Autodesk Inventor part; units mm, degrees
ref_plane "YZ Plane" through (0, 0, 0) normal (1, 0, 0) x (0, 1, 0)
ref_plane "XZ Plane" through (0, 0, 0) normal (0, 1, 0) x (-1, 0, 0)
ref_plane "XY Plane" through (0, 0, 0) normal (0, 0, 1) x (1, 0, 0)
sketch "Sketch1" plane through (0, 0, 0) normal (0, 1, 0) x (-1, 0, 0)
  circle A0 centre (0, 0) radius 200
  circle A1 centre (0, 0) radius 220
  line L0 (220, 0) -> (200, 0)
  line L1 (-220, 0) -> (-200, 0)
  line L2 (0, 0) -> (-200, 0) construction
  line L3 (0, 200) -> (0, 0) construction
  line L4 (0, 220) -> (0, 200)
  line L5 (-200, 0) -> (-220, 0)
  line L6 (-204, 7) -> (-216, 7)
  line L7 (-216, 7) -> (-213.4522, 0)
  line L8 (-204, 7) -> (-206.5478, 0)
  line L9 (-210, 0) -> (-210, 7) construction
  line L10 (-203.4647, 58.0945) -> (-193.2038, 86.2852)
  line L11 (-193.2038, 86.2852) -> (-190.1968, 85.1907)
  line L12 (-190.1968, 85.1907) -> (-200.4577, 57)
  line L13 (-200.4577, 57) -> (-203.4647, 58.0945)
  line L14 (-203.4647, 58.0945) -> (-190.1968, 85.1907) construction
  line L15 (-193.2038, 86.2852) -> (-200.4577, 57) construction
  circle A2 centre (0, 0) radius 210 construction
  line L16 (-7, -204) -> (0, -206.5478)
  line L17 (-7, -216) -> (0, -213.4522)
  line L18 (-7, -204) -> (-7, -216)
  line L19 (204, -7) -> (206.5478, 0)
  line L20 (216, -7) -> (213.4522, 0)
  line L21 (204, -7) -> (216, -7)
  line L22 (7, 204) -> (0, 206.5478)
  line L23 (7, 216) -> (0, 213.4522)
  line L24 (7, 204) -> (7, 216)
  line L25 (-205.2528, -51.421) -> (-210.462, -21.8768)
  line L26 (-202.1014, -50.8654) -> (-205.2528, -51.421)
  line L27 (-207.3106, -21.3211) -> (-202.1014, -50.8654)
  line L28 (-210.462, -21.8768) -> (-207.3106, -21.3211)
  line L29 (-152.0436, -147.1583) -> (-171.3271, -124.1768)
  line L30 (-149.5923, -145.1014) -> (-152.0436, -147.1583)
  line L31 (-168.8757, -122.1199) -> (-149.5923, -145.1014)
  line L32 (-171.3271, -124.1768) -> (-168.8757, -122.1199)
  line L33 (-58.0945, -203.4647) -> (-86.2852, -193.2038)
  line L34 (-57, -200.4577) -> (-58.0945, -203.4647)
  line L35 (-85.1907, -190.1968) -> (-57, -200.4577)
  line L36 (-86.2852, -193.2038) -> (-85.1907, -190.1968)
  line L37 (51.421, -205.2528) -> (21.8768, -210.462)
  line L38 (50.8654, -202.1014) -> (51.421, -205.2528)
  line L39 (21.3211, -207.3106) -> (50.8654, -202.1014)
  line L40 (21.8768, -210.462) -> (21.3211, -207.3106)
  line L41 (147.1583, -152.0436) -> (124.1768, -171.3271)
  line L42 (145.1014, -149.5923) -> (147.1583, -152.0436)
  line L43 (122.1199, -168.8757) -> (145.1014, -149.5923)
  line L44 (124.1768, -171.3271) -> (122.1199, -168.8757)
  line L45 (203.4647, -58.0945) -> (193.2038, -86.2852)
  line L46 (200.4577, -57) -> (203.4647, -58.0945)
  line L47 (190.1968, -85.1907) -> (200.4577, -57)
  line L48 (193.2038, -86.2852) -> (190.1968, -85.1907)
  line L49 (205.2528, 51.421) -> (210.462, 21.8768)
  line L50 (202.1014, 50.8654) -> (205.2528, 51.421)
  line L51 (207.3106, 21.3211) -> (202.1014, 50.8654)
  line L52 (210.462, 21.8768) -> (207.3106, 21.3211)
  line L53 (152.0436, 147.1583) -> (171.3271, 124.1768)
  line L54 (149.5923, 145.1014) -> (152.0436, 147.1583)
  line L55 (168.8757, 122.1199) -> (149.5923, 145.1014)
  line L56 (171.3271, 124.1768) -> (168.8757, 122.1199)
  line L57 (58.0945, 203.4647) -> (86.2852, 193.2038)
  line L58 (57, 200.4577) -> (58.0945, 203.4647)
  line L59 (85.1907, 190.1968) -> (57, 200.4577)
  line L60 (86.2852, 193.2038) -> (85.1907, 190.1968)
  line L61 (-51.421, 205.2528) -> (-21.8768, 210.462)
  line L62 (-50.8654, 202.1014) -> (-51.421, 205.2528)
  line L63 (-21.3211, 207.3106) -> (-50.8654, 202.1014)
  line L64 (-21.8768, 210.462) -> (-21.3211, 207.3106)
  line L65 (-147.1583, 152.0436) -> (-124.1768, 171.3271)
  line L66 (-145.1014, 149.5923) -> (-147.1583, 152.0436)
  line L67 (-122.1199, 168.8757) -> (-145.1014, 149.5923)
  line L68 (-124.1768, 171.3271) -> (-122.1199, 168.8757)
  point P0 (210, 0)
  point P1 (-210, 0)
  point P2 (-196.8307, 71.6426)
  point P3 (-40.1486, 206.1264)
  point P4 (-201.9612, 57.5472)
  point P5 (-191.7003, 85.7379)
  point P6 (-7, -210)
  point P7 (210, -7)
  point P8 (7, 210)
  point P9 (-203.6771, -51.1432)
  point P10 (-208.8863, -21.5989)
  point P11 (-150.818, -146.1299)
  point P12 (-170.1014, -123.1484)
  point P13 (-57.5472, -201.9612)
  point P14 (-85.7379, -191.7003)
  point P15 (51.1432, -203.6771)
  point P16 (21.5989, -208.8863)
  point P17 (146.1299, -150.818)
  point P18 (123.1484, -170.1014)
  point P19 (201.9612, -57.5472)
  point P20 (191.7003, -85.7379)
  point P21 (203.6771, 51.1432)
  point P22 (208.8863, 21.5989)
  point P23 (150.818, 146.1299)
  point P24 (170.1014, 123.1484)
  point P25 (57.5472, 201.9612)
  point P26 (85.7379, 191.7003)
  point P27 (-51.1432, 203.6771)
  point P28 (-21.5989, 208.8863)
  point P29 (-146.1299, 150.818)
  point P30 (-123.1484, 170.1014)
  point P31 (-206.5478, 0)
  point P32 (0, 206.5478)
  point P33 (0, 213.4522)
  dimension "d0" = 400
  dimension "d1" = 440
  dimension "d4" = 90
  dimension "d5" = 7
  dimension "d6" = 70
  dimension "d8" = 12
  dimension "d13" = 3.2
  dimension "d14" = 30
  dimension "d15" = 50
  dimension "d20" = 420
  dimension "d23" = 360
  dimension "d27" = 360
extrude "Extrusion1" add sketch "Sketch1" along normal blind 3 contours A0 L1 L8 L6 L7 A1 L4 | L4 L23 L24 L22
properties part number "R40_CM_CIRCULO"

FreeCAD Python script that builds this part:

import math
import FreeCAD as App
import Part
import Sketcher
Q = App.Units.Quantity

doc = App.newDocument("Part")
body = doc.addObject("PartDesign::Body", "Body")

sketch1 = body.newObject("Sketcher::SketchObject", "Sketch")
sketch1.AttachmentSupport = (doc.getObject("XZ_Plane"), [""])
sketch1.MapMode = "FlatFace"
sketch1.addGeometry([
    Part.ArcOfCircle(Part.Circle(App.Vector(0, 0, 0), App.Vector(0, 0, 1), 200), math.radians(0), math.radians(90)),
    Part.LineSegment(App.Vector(0, 200, 0), App.Vector(0, 206.5478, 0)),
    Part.LineSegment(App.Vector(0, 206.5478, 0), App.Vector(-7, 204, 0)),
    Part.LineSegment(App.Vector(-7, 204, 0), App.Vector(-7, 216, 0)),
    Part.LineSegment(App.Vector(-7, 216, 0), App.Vector(0, 213.4522, 0)),
    Part.LineSegment(App.Vector(0, 213.4522, 0), App.Vector(0, 220, 0)),
    Part.ArcOfCircle(Part.Circle(App.Vector(0, 0, 0), App.Vector(0, 0, 1), 220), math.radians(0), math.radians(90)),
    Part.LineSegment(App.Vector(220, 0, 0), App.Vector(213.4522, 0, 0)),
    Part.LineSegment(App.Vector(213.4522, 0, 0), App.Vector(216, 7, 0)),
    Part.LineSegment(App.Vector(216, 7, 0), App.Vector(204, 7, 0)),
    Part.LineSegment(App.Vector(204, 7, 0), App.Vector(206.5478, 0, 0)),
    Part.LineSegment(App.Vector(206.5478, 0, 0), App.Vector(200, 0, 0)),
    Part.LineSegment(App.Vector(200.4577, 57, 0), App.Vector(203.4647, 58.0945, 0)),
    Part.LineSegment(App.Vector(203.4647, 58.0945, 0), App.Vector(193.2038, 86.2852, 0)),
    Part.LineSegment(App.Vector(193.2038, 86.2852, 0), App.Vector(190.1968, 85.1907, 0)),
    Part.LineSegment(App.Vector(190.1968, 85.1907, 0), App.Vector(200.4577, 57, 0)),
    Part.LineSegment(App.Vector(145.1014, 149.5923, 0), App.Vector(147.1583, 152.0436, 0)),
    Part.LineSegment(App.Vector(147.1583, 152.0436, 0), App.Vector(124.1768, 171.3271, 0)),
    Part.LineSegment(App.Vector(124.1768, 171.3271, 0), App.Vector(122.1199, 168.8757, 0)),
    Part.LineSegment(App.Vector(122.1199, 168.8757, 0), App.Vector(145.1014, 149.5923, 0)),
    Part.LineSegment(App.Vector(50.8654, 202.1014, 0), App.Vector(51.421, 205.2528, 0)),
    Part.LineSegment(App.Vector(51.421, 205.2528, 0), App.Vector(21.8768, 210.462, 0)),
    Part.LineSegment(App.Vector(21.8768, 210.462, 0), App.Vector(21.3211, 207.3106, 0)),
    Part.LineSegment(App.Vector(21.3211, 207.3106, 0), App.Vector(50.8654, 202.1014, 0)),
], False)
sketch1.addConstraint([
    Sketcher.Constraint("Coincident", 0, 2, 1, 1),
    Sketcher.Constraint("Coincident", 1, 2, 2, 1),
    Sketcher.Constraint("Coincident", 2, 2, 3, 1),
    Sketcher.Constraint("Coincident", 3, 2, 4, 1),
    Sketcher.Constraint("Coincident", 4, 2, 5, 1),
    Sketcher.Constraint("Coincident", 5, 2, 6, 2),
    Sketcher.Constraint("Coincident", 6, 1, 7, 1),
    Sketcher.Constraint("Coincident", 7, 2, 8, 1),
    Sketcher.Constraint("Coincident", 8, 2, 9, 1),
    Sketcher.Constraint("Coincident", 9, 2, 10, 1),
    Sketcher.Constraint("Coincident", 10, 2, 11, 1),
    Sketcher.Constraint("Coincident", 11, 2, 0, 1),
    Sketcher.Constraint("Coincident", 12, 2, 13, 1),
    Sketcher.Constraint("Coincident", 13, 2, 14, 1),
    Sketcher.Constraint("Coincident", 14, 2, 15, 1),
    Sketcher.Constraint("Coincident", 15, 2, 12, 1),
    Sketcher.Constraint("Coincident", 16, 2, 17, 1),
    Sketcher.Constraint("Coincident", 17, 2, 18, 1),
    Sketcher.Constraint("Coincident", 18, 2, 19, 1),
    Sketcher.Constraint("Coincident", 19, 2, 16, 1),
    Sketcher.Constraint("Coincident", 20, 2, 21, 1),
    Sketcher.Constraint("Coincident", 21, 2, 22, 1),
    Sketcher.Constraint("Coincident", 22, 2, 23, 1),
    Sketcher.Constraint("Coincident", 23, 2, 20, 1),
    Sketcher.Constraint("Vertical", 1),
    Sketcher.Constraint("Vertical", 3),
    Sketcher.Constraint("Vertical", 5),
    Sketcher.Constraint("Horizontal", 7),
    Sketcher.Constraint("Horizontal", 9),
    Sketcher.Constraint("Horizontal", 11),
    Sketcher.Constraint("Coincident", 0, 3, -1, 1),
    Sketcher.Constraint("Coincident", 6, 3, -1, 1),
    Sketcher.Constraint("PointOnObject", 0, 2, -2),
    Sketcher.Constraint("PointOnObject", 4, 2, -2),
    Sketcher.Constraint("PointOnObject", 6, 1, -1),
    Sketcher.Constraint("PointOnObject", 10, 2, -1),
    Sketcher.Constraint("Perpendicular", 4, 8),
    Sketcher.Constraint("Perpendicular", 2, 10),
    Sketcher.Constraint("Perpendicular", 10, 12),
    Sketcher.Constraint("Perpendicular", 12, 13),
    Sketcher.Constraint("Perpendicular", 13, 14),
    Sketcher.Constraint("Perpendicular", 14, 15),
    Sketcher.Constraint("Perpendicular", 16, 17),
    Sketcher.Constraint("Perpendicular", 17, 18),
    Sketcher.Constraint("Perpendicular", 18, 19),
    Sketcher.Constraint("Perpendicular", 20, 21),
    Sketcher.Constraint("Perpendicular", 21, 22),
    Sketcher.Constraint("Perpendicular", 22, 23),
    Sketcher.Constraint("Equal", 7, 11),
    Sketcher.Constraint("Equal", 11, 1),
    Sketcher.Constraint("Equal", 9, 3),
    Sketcher.Constraint("Equal", 1, 5),
    Sketcher.Constraint("Equal", 2, 4),
    Sketcher.Constraint("Equal", 14, 16),
    Sketcher.Constraint("Equal", 15, 17),
    Sketcher.Constraint("Equal", 18, 20),
    Sketcher.Constraint("Equal", 19, 21),
    Sketcher.Constraint("Radius", 0, 200.0),
    Sketcher.Constraint("Radius", 6, 220.0),
    Sketcher.Constraint("DistanceX", 9, 2, 9, 1, 12.0),
    Sketcher.Constraint("Angle", 8, Q("70 deg")),
    Sketcher.Constraint("Angle", 16, Q("49.9998 deg")),
    Sketcher.Constraint("Distance", 13, 30.0),
    Sketcher.Constraint("DistanceX", 2, 2, -1, 1, 7.0),
    Sketcher.Constraint("DistanceY", 9, 2, 15, 2, 50.0),
    Sketcher.Constraint("Distance", 12, 3.2),
    Sketcher.Constraint("Angle", 21, Q("170.0005 deg")),
    Sketcher.Constraint("DistanceX", -1, 1, 18, 2, 122.12),
    Sketcher.Constraint("DistanceX", 17, 2, 14, 2, 66.02),
    Sketcher.Constraint("DistanceY", -1, 1, 17, 2, 171.327),
    Sketcher.Constraint("DistanceX", -1, 1, 20, 2, 51.421),
    Sketcher.Constraint("DistanceY", -1, 1, 21, 2, 210.462),
])
pad1 = body.newObject("PartDesign::Pad", "Pad")
pad1.Profile = sketch1
pad1.Length = 3
pad1.Reversed = True

doc.recompute()
